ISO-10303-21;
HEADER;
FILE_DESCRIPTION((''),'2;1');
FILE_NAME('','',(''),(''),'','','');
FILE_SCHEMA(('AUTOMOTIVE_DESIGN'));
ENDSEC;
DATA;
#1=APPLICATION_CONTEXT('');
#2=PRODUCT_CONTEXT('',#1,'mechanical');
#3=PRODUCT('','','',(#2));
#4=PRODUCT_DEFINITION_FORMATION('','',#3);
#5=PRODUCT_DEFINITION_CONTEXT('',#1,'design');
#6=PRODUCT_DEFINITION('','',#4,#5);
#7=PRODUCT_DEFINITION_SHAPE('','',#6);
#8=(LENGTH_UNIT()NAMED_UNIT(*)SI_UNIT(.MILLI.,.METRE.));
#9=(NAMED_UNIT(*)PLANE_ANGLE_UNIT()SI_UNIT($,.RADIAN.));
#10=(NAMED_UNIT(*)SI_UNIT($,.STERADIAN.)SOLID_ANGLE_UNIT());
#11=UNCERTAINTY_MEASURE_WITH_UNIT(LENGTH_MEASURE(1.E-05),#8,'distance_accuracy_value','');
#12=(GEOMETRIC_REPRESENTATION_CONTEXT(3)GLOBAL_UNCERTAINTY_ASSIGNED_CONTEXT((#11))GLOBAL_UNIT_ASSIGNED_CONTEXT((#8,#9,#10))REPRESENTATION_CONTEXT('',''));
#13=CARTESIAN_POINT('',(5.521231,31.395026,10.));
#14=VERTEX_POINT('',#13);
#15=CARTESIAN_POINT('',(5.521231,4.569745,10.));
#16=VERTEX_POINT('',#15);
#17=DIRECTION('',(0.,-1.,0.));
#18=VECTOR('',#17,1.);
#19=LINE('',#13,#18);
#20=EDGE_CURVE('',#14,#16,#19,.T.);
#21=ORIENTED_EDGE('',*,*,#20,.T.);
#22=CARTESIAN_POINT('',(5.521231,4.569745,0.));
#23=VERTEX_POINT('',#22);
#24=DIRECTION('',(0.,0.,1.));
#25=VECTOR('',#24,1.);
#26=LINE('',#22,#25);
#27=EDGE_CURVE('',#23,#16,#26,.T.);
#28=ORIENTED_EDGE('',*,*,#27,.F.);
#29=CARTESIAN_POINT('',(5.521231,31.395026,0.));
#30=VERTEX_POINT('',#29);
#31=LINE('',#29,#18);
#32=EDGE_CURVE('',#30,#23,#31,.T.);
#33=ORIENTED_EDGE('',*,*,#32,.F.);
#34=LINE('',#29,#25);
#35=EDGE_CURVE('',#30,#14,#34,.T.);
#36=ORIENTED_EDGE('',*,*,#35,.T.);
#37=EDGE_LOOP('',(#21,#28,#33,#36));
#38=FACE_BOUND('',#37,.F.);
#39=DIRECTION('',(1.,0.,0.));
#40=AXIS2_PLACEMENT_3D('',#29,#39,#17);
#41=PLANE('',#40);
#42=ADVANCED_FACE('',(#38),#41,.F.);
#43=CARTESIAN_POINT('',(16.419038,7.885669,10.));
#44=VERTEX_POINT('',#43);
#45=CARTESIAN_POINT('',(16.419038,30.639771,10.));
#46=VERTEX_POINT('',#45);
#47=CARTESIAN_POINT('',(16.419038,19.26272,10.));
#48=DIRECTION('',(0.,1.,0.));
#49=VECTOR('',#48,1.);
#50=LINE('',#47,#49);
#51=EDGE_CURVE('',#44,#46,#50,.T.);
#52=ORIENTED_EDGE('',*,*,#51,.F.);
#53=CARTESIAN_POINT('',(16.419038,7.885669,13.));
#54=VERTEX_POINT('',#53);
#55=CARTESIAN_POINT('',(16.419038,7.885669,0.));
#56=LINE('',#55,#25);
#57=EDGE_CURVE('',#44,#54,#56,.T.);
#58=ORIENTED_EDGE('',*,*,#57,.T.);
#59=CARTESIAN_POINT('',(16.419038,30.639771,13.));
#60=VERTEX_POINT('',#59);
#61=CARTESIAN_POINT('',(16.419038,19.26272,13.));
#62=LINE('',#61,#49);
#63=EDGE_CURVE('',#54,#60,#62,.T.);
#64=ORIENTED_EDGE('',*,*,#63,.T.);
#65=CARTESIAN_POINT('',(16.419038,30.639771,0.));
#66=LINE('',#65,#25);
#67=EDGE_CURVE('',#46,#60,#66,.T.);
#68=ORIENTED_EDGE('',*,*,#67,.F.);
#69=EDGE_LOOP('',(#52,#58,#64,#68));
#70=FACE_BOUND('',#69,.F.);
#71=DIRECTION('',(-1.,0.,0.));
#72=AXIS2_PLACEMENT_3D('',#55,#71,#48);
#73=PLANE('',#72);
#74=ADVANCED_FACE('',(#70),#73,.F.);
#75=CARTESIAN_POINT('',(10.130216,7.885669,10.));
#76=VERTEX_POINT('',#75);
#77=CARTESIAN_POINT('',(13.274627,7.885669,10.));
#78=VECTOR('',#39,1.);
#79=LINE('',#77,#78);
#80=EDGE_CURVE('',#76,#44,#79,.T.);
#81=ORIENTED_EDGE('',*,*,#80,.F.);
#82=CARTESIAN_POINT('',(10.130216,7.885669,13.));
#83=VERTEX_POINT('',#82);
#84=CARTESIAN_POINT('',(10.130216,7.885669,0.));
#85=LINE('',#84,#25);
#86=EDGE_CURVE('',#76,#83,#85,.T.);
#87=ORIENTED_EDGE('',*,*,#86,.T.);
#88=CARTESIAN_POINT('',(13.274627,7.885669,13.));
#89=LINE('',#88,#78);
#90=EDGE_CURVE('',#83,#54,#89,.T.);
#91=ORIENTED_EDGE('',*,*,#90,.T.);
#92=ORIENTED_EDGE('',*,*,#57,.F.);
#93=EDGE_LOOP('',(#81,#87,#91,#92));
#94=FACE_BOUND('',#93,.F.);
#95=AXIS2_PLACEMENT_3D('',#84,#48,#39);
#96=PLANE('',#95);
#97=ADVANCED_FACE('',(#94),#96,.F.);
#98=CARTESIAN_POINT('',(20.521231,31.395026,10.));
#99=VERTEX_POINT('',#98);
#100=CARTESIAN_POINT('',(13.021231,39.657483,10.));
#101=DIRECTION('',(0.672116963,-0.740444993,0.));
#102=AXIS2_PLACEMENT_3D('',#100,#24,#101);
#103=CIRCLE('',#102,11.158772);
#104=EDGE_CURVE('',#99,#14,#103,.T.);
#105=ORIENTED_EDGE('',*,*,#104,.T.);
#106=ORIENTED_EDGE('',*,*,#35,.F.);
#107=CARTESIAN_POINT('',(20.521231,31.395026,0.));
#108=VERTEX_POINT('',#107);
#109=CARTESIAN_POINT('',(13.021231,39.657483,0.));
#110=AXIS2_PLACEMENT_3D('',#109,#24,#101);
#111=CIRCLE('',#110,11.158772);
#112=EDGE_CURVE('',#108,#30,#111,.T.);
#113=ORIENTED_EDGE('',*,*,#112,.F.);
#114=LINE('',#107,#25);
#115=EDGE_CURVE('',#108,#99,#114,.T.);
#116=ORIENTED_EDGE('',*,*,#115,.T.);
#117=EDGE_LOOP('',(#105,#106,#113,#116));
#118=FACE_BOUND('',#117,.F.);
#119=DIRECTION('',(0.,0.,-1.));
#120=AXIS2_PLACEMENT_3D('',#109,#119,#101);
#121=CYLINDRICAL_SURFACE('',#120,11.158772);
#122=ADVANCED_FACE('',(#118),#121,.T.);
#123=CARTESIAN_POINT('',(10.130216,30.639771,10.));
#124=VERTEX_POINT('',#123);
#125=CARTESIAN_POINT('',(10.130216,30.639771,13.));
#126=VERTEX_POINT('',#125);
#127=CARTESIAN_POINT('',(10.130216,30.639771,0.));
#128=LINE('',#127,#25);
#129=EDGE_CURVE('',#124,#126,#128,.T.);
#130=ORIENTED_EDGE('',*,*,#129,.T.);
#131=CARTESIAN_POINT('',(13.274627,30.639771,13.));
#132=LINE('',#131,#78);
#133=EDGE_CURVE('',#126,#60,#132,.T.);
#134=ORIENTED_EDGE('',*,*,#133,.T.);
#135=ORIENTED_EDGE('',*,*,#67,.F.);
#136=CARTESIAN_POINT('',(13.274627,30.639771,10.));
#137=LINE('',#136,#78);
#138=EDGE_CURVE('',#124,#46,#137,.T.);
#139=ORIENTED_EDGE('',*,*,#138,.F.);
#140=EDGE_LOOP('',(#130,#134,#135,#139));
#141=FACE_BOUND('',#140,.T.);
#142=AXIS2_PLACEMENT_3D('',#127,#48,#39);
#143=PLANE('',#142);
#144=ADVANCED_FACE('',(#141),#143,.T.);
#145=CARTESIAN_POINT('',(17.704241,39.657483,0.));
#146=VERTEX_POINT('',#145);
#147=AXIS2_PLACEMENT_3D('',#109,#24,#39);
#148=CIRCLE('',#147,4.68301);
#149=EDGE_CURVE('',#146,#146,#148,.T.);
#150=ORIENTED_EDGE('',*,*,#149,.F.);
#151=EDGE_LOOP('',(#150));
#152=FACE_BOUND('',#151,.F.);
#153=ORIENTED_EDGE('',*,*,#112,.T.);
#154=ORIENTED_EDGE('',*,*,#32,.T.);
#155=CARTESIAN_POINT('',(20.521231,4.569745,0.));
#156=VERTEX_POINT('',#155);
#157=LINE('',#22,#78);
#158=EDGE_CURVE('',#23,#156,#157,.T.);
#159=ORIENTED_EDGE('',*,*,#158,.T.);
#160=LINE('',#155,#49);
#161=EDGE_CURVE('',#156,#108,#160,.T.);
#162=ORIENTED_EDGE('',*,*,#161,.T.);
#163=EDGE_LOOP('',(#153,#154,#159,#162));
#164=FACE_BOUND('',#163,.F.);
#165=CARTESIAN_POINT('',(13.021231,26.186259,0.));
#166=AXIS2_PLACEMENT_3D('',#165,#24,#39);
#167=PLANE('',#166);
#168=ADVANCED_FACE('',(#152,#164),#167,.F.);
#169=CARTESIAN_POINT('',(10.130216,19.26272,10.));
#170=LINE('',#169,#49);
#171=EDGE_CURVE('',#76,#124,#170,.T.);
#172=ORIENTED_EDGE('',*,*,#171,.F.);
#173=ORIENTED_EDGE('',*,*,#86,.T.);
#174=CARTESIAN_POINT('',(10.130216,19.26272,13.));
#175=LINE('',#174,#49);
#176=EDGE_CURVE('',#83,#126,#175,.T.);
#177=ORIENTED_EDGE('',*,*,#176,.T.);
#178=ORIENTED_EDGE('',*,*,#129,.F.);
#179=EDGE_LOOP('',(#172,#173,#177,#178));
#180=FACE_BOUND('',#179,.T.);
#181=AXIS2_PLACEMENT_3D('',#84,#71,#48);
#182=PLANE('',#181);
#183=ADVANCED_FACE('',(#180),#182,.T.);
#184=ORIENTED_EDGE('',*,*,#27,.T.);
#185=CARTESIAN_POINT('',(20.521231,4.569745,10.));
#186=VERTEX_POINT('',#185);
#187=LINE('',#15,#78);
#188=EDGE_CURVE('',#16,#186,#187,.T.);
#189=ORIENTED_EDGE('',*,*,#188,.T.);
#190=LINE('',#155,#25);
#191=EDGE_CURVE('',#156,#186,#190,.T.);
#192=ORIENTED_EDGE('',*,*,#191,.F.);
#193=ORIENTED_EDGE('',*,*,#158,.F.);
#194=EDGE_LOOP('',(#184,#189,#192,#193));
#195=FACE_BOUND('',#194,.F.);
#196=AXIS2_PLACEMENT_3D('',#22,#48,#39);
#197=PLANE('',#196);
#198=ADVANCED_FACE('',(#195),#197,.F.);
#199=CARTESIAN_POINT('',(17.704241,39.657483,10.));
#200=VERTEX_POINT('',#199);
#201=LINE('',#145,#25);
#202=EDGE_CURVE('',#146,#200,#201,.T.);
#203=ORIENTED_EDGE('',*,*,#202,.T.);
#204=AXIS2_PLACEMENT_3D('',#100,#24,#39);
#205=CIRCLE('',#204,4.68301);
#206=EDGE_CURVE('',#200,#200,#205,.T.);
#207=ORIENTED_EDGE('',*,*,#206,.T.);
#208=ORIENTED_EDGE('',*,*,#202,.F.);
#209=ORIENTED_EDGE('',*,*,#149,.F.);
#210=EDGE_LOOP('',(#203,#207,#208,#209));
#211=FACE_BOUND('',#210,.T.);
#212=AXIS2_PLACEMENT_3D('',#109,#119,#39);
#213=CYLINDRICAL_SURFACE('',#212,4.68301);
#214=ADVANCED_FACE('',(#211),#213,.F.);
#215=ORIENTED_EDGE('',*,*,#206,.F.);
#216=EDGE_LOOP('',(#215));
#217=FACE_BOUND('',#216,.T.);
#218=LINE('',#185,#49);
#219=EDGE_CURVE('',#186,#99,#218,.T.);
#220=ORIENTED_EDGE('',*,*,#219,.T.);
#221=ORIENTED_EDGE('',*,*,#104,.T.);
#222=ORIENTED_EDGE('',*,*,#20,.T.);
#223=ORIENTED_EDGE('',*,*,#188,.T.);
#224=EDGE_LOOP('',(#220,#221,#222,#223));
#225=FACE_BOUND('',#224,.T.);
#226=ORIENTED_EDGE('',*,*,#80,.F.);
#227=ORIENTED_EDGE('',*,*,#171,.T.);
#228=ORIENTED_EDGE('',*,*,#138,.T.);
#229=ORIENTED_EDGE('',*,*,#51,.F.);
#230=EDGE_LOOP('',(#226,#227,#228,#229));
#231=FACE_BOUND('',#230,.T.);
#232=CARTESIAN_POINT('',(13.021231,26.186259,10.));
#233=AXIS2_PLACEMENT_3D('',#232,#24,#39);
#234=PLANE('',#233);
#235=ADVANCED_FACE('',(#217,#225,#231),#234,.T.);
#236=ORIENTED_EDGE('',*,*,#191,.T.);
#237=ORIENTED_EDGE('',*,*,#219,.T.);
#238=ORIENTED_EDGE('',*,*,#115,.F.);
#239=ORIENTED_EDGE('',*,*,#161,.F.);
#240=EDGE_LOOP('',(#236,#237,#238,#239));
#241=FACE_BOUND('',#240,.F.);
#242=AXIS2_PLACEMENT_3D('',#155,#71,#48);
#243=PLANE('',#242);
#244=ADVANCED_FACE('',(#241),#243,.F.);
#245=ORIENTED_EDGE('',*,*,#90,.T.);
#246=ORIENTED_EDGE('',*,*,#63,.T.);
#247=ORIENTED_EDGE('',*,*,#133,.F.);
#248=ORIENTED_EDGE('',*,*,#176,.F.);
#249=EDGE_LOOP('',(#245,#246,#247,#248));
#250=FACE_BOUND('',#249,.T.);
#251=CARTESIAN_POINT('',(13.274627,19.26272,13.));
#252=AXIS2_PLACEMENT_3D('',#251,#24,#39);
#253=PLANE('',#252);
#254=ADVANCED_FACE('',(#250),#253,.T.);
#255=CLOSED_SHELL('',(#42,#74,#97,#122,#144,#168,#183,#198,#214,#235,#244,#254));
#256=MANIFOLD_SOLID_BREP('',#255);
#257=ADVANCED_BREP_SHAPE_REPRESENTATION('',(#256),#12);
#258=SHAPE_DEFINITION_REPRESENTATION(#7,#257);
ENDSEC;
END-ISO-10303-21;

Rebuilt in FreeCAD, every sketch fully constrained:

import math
import FreeCAD as App
import Part
import Sketcher
Q = App.Units.Quantity


def add_polygon(sketch, points):
    """Adds a closed chain of lines whose ends are joined by coincident constraints."""
    first, n = sketch.GeometryCount, len(points)
    for a, b in zip(points, points[1:] + points[:1]):
        sketch.addGeometry(Part.LineSegment(App.Vector(*a, 0), App.Vector(*b, 0)), False)
    for i in range(n):
        sketch.addConstraint(Sketcher.Constraint("Coincident", first + i, 2, first + (i + 1) % n, 1))

doc = App.newDocument("Part")
params = doc.addObject("Spreadsheet::Sheet", "Params")
for row, (alias, value) in enumerate([
    ("sketch1_width", "15 mm"),
    ("pad1_length", "10 mm"),
    ("pad2_length", "13 mm"),
], start=1):
    params.set(f"A{row}", alias)
    params.set(f"B{row}", "=" + value)
    params.setAlias(f"B{row}", alias)

body = doc.addObject("PartDesign::Body", "Body")

sketch1 = body.newObject("Sketcher::SketchObject", "Sketch")
sketch1.AttachmentSupport = (doc.getObject("XY_Plane"), [""])
sketch1.MapMode = "FlatFace"
sketch1.addGeometry(Part.LineSegment(App.Vector(20.521231, 4.569745, 0), App.Vector(20.521231, 31.395026, 0)), False)
sketch1.addGeometry(Part.ArcOfCircle(Part.Circle(App.Vector(13.021231, 39.657483, 0), App.Vector(0, 0, 1), 11.158772), math.radians(-47.769336), math.radians(227.769336)), False)
sketch1.addGeometry(Part.LineSegment(App.Vector(5.521231, 31.395026, 0), App.Vector(5.521231, 4.569745, 0)), False)
sketch1.addGeometry(Part.LineSegment(App.Vector(5.521231, 4.569745, 0), App.Vector(20.521231, 4.569745, 0)), False)
add_polygon(sketch1, [(16.419038, 7.885669), (10.130216, 7.885669), (10.130216, 30.639771), (16.419038, 30.639771)])
sketch1.addGeometry(Part.Circle(App.Vector(13.021231, 39.657483, 0), App.Vector(0, 0, 1), 4.68301), False)
sketch1.addConstraint([
    Sketcher.Constraint("Coincident", 0, 2, 1, 1),
    Sketcher.Constraint("Coincident", 1, 2, 2, 1),
    Sketcher.Constraint("Coincident", 2, 2, 3, 1),
    Sketcher.Constraint("Coincident", 3, 2, 0, 1),
    Sketcher.Constraint("Vertical", 0),
    Sketcher.Constraint("Vertical", 2),
    Sketcher.Constraint("Horizontal", 3),
    Sketcher.Constraint("Horizontal", 4),
    Sketcher.Constraint("Vertical", 5),
    Sketcher.Constraint("Horizontal", 6),
    Sketcher.Constraint("Vertical", 7),
    Sketcher.Constraint("Coincident", 8, 3, 1, 3),
    Sketcher.Constraint("Horizontal", 0, 2, 1, 2),
    Sketcher.Constraint("DistanceX", 3, 1, 3, 2, Q("15 mm")),
    Sketcher.Constraint("Diameter", 8, Q("9.36602 mm")),
    Sketcher.Constraint("DistanceY", 5, 1, 5, 2, Q("22.754102 mm")),
    Sketcher.Constraint("Radius", 1, Q("11.158772 mm")),
    Sketcher.Constraint("DistanceY", 0, 1, 0, 2, Q("26.825281 mm")),
    Sketcher.Constraint("DistanceX", 4, 2, 4, 1, Q("6.288823 mm")),
    Sketcher.Constraint("DistanceX", -1, 1, 1, 3, Q("13.021231 mm")),
    Sketcher.Constraint("DistanceY", -1, 1, 4, 2, Q("7.885669 mm")),
    Sketcher.Constraint("DistanceX", -1, 1, 6, 2, Q("16.419038 mm")),
    Sketcher.Constraint("DistanceY", 5, 2, 1, 3, Q("9.017712 mm")),
])
sketch1.setExpression("Constraints[17]", "Params.sketch1_width")
pad1 = body.newObject("PartDesign::Pad", "Pad")
pad1.Profile = sketch1
pad1.setExpression("Length", "Params.pad1_length")

sketch2 = body.newObject("Sketcher::SketchObject", "Sketch001")
sketch2.AttachmentSupport = (doc.getObject("XY_Plane"), [""])
sketch2.MapMode = "FlatFace"
add_polygon(sketch2, [(10.130216, 30.639771), (10.130216, 7.885669), (16.419038, 7.885669), (16.419038, 30.639771)])
sketch2.addConstraint([
    Sketcher.Constraint("Vertical", 0),
    Sketcher.Constraint("Horizontal", 1),
    Sketcher.Constraint("Vertical", 2),
    Sketcher.Constraint("Horizontal", 3),
    Sketcher.Constraint("DistanceY", 0, 2, 0, 1, Q("22.754102 mm")),
    Sketcher.Constraint("DistanceX", 1, 1, 1, 2, Q("6.288823 mm")),
    Sketcher.Constraint("DistanceY", -1, 1, 0, 2, Q("7.885669 mm")),
    Sketcher.Constraint("DistanceX", -1, 1, 1, 2, Q("16.419038 mm")),
])
pad2 = body.newObject("PartDesign::Pad", "Pad001")
pad2.Profile = sketch2
pad2.setExpression("Length", "Params.pad2_length")

doc.recompute()
